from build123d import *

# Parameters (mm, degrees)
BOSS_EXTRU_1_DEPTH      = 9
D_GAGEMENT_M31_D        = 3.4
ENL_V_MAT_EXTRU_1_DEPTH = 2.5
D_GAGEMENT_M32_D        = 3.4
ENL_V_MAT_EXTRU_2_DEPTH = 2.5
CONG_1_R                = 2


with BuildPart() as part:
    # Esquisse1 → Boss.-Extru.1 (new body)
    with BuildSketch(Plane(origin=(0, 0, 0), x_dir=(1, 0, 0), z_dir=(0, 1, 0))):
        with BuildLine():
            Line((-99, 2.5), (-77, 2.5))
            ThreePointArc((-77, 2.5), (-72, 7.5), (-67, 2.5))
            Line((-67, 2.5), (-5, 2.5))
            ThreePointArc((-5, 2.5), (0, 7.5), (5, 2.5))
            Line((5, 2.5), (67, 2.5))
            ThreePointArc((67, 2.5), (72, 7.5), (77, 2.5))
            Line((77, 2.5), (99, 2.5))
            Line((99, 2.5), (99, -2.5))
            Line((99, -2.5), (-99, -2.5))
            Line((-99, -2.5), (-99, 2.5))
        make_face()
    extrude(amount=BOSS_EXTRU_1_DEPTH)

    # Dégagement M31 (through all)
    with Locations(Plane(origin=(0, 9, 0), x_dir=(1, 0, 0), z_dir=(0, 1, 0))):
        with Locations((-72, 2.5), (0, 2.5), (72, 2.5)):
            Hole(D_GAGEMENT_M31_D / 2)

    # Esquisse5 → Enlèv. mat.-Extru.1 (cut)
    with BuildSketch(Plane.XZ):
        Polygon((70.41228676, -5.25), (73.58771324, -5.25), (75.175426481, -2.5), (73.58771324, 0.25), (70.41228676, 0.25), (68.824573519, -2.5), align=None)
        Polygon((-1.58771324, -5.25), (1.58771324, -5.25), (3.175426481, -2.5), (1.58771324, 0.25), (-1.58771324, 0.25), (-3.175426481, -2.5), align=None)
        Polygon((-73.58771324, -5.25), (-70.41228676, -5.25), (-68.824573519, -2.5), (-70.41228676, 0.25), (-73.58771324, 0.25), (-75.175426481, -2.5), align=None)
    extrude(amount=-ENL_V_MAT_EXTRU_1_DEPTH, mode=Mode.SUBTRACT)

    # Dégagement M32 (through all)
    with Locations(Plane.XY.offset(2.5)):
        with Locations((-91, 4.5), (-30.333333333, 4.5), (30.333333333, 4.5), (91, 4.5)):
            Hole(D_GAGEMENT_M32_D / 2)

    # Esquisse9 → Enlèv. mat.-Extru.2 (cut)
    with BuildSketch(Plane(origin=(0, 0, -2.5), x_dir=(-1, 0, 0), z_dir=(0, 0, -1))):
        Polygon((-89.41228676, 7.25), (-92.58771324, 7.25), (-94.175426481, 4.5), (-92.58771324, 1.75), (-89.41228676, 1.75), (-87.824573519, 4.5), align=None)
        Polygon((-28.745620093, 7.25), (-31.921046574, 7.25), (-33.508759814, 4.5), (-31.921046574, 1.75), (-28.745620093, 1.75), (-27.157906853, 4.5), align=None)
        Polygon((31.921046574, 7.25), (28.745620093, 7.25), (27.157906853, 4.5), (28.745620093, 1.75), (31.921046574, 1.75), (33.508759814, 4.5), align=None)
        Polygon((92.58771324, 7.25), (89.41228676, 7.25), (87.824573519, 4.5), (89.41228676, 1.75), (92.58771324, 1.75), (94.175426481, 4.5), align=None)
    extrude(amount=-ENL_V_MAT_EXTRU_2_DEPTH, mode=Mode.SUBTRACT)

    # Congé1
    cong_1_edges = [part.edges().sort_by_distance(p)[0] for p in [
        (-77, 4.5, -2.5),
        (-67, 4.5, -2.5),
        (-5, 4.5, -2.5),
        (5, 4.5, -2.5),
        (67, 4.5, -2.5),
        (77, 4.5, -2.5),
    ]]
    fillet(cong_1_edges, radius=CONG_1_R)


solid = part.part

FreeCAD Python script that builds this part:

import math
import FreeCAD as App
import Part
import Sketcher
from FreeCAD import Vector
Q = App.Units.Quantity


def edges_at(feature, points):
    """Names of the edges that pass closest to the given points."""
    edges = feature.Shape.Edges
    near = lambda p: min(range(len(edges)), key=lambda i: edges[i].distToShape(Part.Vertex(*p))[0])
    return sorted({f"Edge{near(p) + 1}" for p in points})


def add_polygon(sketch, points):
    """Adds a closed chain of lines whose ends are joined by coincident constraints."""
    first, n = sketch.GeometryCount, len(points)
    for a, b in zip(points, points[1:] + points[:1]):
        sketch.addGeometry(Part.LineSegment(App.Vector(*a, 0), App.Vector(*b, 0)), False)
    for i in range(n):
        sketch.addConstraint(Sketcher.Constraint("Coincident", first + i, 2, first + (i + 1) % n, 1))

doc = App.newDocument("Part")
body = doc.addObject("PartDesign::Body", "Body")

sketch1 = doc.addObject("Sketcher::SketchObject", "Sketch")
body.addObject(sketch1)
sketch1.AttachmentSupport = (doc.XZ_Plane, [""])
sketch1.MapMode = "FlatFace"
sketch1.addGeometry([
    Part.LineSegment(Vector(-77, -2, 0), Vector(-99, -2, 0)),
    Part.LineSegment(Vector(-99, -2, 0), Vector(-99, 2, 0)),
    Part.LineSegment(Vector(-99, 2, 0), Vector(99, 2, 0)),
    Part.LineSegment(Vector(99, 2, 0), Vector(99, -2, 0)),
    Part.LineSegment(Vector(99, -2, 0), Vector(77, -2, 0)),
    Part.ArcOfCircle(Part.Circle(Vector(72, -2, 0), Vector(0, 0, 1), 5), math.radians(180), math.radians(360)),
    Part.LineSegment(Vector(67, -2, 0), Vector(5, -2, 0)),
    Part.ArcOfCircle(Part.Circle(Vector(0, -2, 0), Vector(0, 0, 1), 5), math.radians(180), math.radians(360)),
    Part.LineSegment(Vector(-5, -2, 0), Vector(-67, -2, 0)),
    Part.ArcOfCircle(Part.Circle(Vector(-72, -2, 0), Vector(0, 0, 1), 5), math.radians(180), math.radians(360)),
], False)
sketch1.addConstraint([
    Sketcher.Constraint("Coincident", 0, 2, 1, 1),
    Sketcher.Constraint("Coincident", 1, 2, 2, 1),
    Sketcher.Constraint("Coincident", 2, 2, 3, 1),
    Sketcher.Constraint("Coincident", 3, 2, 4, 1),
    Sketcher.Constraint("Coincident", 4, 2, 5, 2),
    Sketcher.Constraint("Coincident", 5, 1, 6, 1),
    Sketcher.Constraint("Coincident", 6, 2, 7, 2),
    Sketcher.Constraint("Coincident", 7, 1, 8, 1),
    Sketcher.Constraint("Coincident", 8, 2, 9, 2),
    Sketcher.Constraint("Coincident", 9, 1, 0, 1),
    Sketcher.Constraint("Horizontal", 0),
    Sketcher.Constraint("Vertical", 1),
    Sketcher.Constraint("Horizontal", 2),
    Sketcher.Constraint("Vertical", 3),
    Sketcher.Constraint("Horizontal", 4),
    Sketcher.Constraint("Horizontal", 6),
    Sketcher.Constraint("Horizontal", 8),
    Sketcher.Constraint("Equal", 5, 7),
    Sketcher.Constraint("Equal", 7, 9),
    Sketcher.Constraint("Symmetric", 0, 2, 2, 2, -1, 1),
    Sketcher.Constraint("Symmetric", 5, 3, 9, 3, -2),
    Sketcher.Constraint("Symmetric", 6, 2, 7, 1, -2),
    Sketcher.Constraint("Horizontal", 5, 3, 7, 3),
    Sketcher.Constraint("Horizontal", 9, 3, 0, 2),
    Sketcher.Constraint("Horizontal", 0, 2, 3, 2),
    Sketcher.Constraint("Horizontal", 4, 2, 5, 1),
    Sketcher.Constraint("Radius", 5, Q("5 mm")),
    Sketcher.Constraint("DistanceX", 0, 2, 0, 1, Q("22 mm")),
    Sketcher.Constraint("DistanceX", 2, 1, 2, 2, Q("198 mm")),
    Sketcher.Constraint("DistanceY", 1, 1, 1, 2, Q("5 mm")),
])
pad1 = doc.addObject("PartDesign::Pad", "Pad")
body.addObject(pad1)
pad1.Profile = sketch1
pad1.Length = 9
pad1.Reversed = True

sketch2 = doc.addObject("Sketcher::SketchObject", "Sketch001")
body.addObject(sketch2)
sketch2.AttachmentSupport = (doc.XZ_Plane, [""])
sketch2.MapMode = "FlatFace"
sketch2.AttachmentOffset = App.Placement(Vector(0, 0, -9), App.Rotation())
sketch2.addGeometry([
    Part.Circle(Vector(-72, -2.5, 0), Vector(0, 0, 1), 1.7),
    Part.Circle(Vector(0, -2.5, 0), Vector(0, 0, 1), 1.7),
    Part.Circle(Vector(72, -2.5, 0), Vector(0, 0, 1), 1.7),
], False)
sketch2.addConstraint([
    Sketcher.Constraint("Equal", 0, 1),
    Sketcher.Constraint("Equal", 1, 2),
    Sketcher.Constraint("Symmetric", 0, 3, 2, 3, -2),
    Sketcher.Constraint("PointOnObject", 1, 3, -2),
    Sketcher.Constraint("Horizontal", 0, 3, 1, 3),
    Sketcher.Constraint("Diameter", 0, Q("3.4 mm")),
    Sketcher.Constraint("DistanceX", 0, 3, -1, 1, Q("72 mm")),
    Sketcher.Constraint("DistanceY", 0, 3, -1, 1, Q("2.5 mm")),
])
doc.recompute()
hole = doc.addObject("PartDesign::Hole", "Hole")
body.addObject(hole)
hole.Profile = sketch2
hole.ThreadType = "None"
hole.Diameter = 3.4
hole.DepthType = "ThroughAll"
hole.Reversed = True

sketch3 = doc.addObject("Sketcher::SketchObject", "Sketch002")
body.addObject(sketch3)
sketch3.AttachmentSupport = (doc.XZ_Plane, [""])
sketch3.MapMode = "FlatFace"
add_polygon(sketch3, [(70.4, -5.2), (73.6, -5.2), (75.2, -2.5), (73.6, 0.2), (70.4, 0.2), (68.8, -2.5)])
add_polygon(sketch3, [(-1.6, -5.2), (1.6, -5.2), (3.2, -2.5), (1.6, 0.2), (-1.6, 0.2), (-3.2, -2.5)])
add_polygon(sketch3, [(-73.6, -5.2), (-70.4, -5.2), (-68.8, -2.5), (-70.4, 0.2), (-73.6, 0.2), (-75.2, -2.5)])
sketch3.addConstraint([
    Sketcher.Constraint("Horizontal", 0),
    Sketcher.Constraint("Horizontal", 3),
    Sketcher.Constraint("Horizontal", 6),
    Sketcher.Constraint("Horizontal", 9),
    Sketcher.Constraint("Horizontal", 12),
    Sketcher.Constraint("Horizontal", 15),
    Sketcher.Constraint("Symmetric", 7, 2, 10, 2, -2),
    Sketcher.Constraint("Symmetric", 5, 2, 12, 2, -2),
    Sketcher.Constraint("Symmetric", 4, 2, 13, 2, -2),
    Sketcher.Constraint("Symmetric", 3, 2, 14, 2, -2),
    Sketcher.Constraint("Symmetric", 1, 2, 16, 2, -2),
    Sketcher.Constraint("Parallel", 1, 4),
    Sketcher.Constraint("Parallel", 2, 5),
    Sketcher.Constraint("Parallel", 4, 7),
    Sketcher.Constraint("Parallel", 5, 8),
    Sketcher.Constraint("Parallel", 7, 10),
    Sketcher.Constraint("Parallel", 8, 11),
    Sketcher.Constraint("Parallel", 10, 13),
    Sketcher.Constraint("Parallel", 13, 16),
    Sketcher.Constraint("Parallel", 14, 17),
    Sketcher.Constraint("Horizontal", 1, 2, 4, 2),
    Sketcher.Constraint("Horizontal", 5, 2, 6, 2),
    Sketcher.Constraint("Horizontal", 4, 2, 7, 2),
    Sketcher.Constraint("Horizontal", 3, 2, 8, 2),
    Sketcher.Constraint("Vertical", 0, 2, 2, 2),
    Sketcher.Constraint("Equal", 3, 6),
    Sketcher.Constraint("Angle", 1, Q("60 deg")),
    Sketcher.Constraint("DistanceX", 6, 2, 0, 2, Q("72 mm")),
    Sketcher.Constraint("DistanceY", 1, 2, -1, 1, Q("2.5 mm")),
    Sketcher.Constraint("DistanceY", 0, 2, 2, 2, Q("5.5 mm")),
    Sketcher.Constraint("DistanceX", 0, 1, 0, 2, Q("3.175426 mm")),
])
pocket1 = doc.addObject("PartDesign::Pocket", "Pocket")
body.addObject(pocket1)
pocket1.Profile = sketch3
pocket1.Length = 2.5

sketch4 = doc.addObject("Sketcher::SketchObject", "Sketch003")
body.addObject(sketch4)
sketch4.AttachmentSupport = (doc.XY_Plane, [""])
sketch4.MapMode = "FlatFace"
sketch4.AttachmentOffset = App.Placement(Vector(0, 0, 2.5), App.Rotation())
sketch4.addGeometry([
    Part.Circle(Vector(-91, 4.5, 0), Vector(0, 0, 1), 1.7),
    Part.Circle(Vector(-30.3, 4.5, 0), Vector(0, 0, 1), 1.7),
    Part.Circle(Vector(30.3, 4.5, 0), Vector(0, 0, 1), 1.7),
    Part.Circle(Vector(91, 4.5, 0), Vector(0, 0, 1), 1.7),
], False)
sketch4.addConstraint([
    Sketcher.Constraint("Equal", 0, 1),
    Sketcher.Constraint("Equal", 1, 2),
    Sketcher.Constraint("Equal", 2, 3),
    Sketcher.Constraint("Symmetric", 1, 3, 2, 3, -2),
    Sketcher.Constraint("Symmetric", 0, 3, 3, 3, -2),
    Sketcher.Constraint("Horizontal", 0, 3, 1, 3),
    Sketcher.Constraint("Diameter", 0, Q("3.4 mm")),
    Sketcher.Constraint("DistanceX", 0, 3, -1, 1, Q("91 mm")),
    Sketcher.Constraint("DistanceY", -1, 1, 0, 3, Q("4.5 mm")),
    Sketcher.Constraint("DistanceX", 1, 3, -1, 1, Q("30.333333 mm")),
])
doc.recompute()
hole2 = doc.addObject("PartDesign::Hole", "Hole001")
body.addObject(hole2)
hole2.Profile = sketch4
hole2.ThreadType = "None"
hole2.Diameter = 3.4
hole2.DepthType = "ThroughAll"

sketch5 = doc.addObject("Sketcher::SketchObject", "Sketch004")
body.addObject(sketch5)
sketch5.AttachmentSupport = (doc.XY_Plane, [""])
sketch5.MapMode = "FlatFace"
sketch5.AttachmentOffset = App.Placement(Vector(0, 0, -2.5), App.Rotation())
add_polygon(sketch5, [(89.4, 7.2), (92.6, 7.2), (94.2, 4.5), (92.6, 1.8), (89.4, 1.8), (87.8, 4.5)])
add_polygon(sketch5, [(28.7, 7.2), (31.9, 7.2), (33.5, 4.5), (31.9, 1.8), (28.7, 1.8), (27.2, 4.5)])
add_polygon(sketch5, [(-31.9, 7.2), (-28.7, 7.2), (-27.2, 4.5), (-28.7, 1.8), (-31.9, 1.8), (-33.5, 4.5)])
add_polygon(sketch5, [(-92.6, 7.2), (-89.4, 7.2), (-87.8, 4.5), (-89.4, 1.8), (-92.6, 1.8), (-94.2, 4.5)])
sketch5.addConstraint([
    Sketcher.Constraint("Horizontal", 0),
    Sketcher.Constraint("Horizontal", 3),
    Sketcher.Constraint("Horizontal", 6),
    Sketcher.Constraint("Horizontal", 9),
    Sketcher.Constraint("Horizontal", 12),
    Sketcher.Constraint("Horizontal", 15),
    Sketcher.Constraint("Horizontal", 18),
    Sketcher.Constraint("Horizontal", 21),
    Sketcher.Constraint("Symmetric", 11, 2, 12, 2, -2),
    Sketcher.Constraint("Symmetric", 10, 2, 13, 2, -2),
    Sketcher.Constraint("Symmetric", 9, 2, 14, 2, -2),
    Sketcher.Constraint("Symmetric", 7, 2, 16, 2, -2),
    Sketcher.Constraint("Symmetric", 5, 2, 18, 2, -2),
    Sketcher.Constraint("Symmetric", 4, 2, 19, 2, -2),
    Sketcher.Constraint("Symmetric", 3, 2, 20, 2, -2),
    Sketcher.Constraint("Symmetric", 1, 2, 22, 2, -2),
    Sketcher.Constraint("Parallel", 1, 4),
    Sketcher.Constraint("Parallel", 2, 5),
    Sketcher.Constraint("Parallel", 4, 7),
    Sketcher.Constraint("Parallel", 5, 8),
    Sketcher.Constraint("Parallel", 7, 10),
    Sketcher.Constraint("Parallel", 8, 11),
    Sketcher.Constraint("Parallel", 10, 13),
    Sketcher.Constraint("Parallel", 13, 16),
    Sketcher.Constraint("Parallel", 14, 17),
    Sketcher.Constraint("Parallel", 19, 22),
    Sketcher.Constraint("Parallel", 20, 23),
    Sketcher.Constraint("Horizontal", 1, 2, 4, 2),
    Sketcher.Constraint("Horizontal", 5, 2, 6, 2),
    Sketcher.Constraint("Horizontal", 4, 2, 7, 2),
    Sketcher.Constraint("Horizontal", 3, 2, 8, 2),
    Sketcher.Constraint("Horizontal", 7, 2, 10, 2),
    Sketcher.Constraint("Vertical", 0, 2, 2, 2),
    Sketcher.Constraint("Equal", 3, 6),
    Sketcher.Constraint("Angle", 1, Q("-60 deg")),
    Sketcher.Constraint("DistanceY", -1, 1, 1, 2, Q("4.5 mm")),
    Sketcher.Constraint("DistanceY", 2, 2, 0, 2, Q("5.5 mm")),
    Sketcher.Constraint("DistanceX", 0, 1, 0, 2, Q("3.175426 mm")),
    Sketcher.Constraint("DistanceX", -1, 1, 7, 2, Q("33.50876 mm")),
    Sketcher.Constraint("DistanceX", 6, 2, 5, 2, Q("57.49124 mm")),
])
pocket2 = doc.addObject("PartDesign::Pocket", "Pocket001")
body.addObject(pocket2)
pocket2.Profile = sketch5
pocket2.Length = 2.5
pocket2.Reversed = True
doc.recompute()

fillet = doc.addObject("PartDesign::Fillet", "Fillet")
body.addObject(fillet)
fillet.Base = (pocket2, edges_at(pocket2, [
    (-77, 4.5, -2.5),
    (-67, 4.5, -2.5),
    (-5, 4.5, -2.5),
    (5, 4.5, -2.5),
    (67, 4.5, -2.5),
    (77, 4.5, -2.5),
]))
fillet.Radius = 2

doc.recompute()
